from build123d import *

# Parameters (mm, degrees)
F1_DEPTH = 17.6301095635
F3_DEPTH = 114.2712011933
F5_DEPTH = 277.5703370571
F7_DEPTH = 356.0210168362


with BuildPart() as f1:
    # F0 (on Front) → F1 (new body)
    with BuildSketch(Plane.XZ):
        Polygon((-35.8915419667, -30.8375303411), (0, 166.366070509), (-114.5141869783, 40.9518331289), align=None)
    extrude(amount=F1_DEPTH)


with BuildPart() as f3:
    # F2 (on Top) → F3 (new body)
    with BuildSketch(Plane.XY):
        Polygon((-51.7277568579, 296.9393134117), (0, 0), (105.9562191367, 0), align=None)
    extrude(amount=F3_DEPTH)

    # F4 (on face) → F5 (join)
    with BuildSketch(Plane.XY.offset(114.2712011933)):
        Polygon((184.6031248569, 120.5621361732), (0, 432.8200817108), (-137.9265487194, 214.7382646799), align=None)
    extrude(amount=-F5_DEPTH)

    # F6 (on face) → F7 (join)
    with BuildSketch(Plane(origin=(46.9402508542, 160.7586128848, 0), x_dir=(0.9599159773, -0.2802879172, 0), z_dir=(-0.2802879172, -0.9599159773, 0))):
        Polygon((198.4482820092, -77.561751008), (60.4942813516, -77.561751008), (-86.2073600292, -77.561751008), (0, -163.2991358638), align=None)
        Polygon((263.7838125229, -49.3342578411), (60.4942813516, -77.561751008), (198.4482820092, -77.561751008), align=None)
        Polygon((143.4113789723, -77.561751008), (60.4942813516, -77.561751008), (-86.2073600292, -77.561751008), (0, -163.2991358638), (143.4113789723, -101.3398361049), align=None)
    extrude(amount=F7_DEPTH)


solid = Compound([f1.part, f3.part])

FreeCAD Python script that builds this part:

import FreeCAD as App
import Part
import Sketcher
from FreeCAD import Vector

doc = App.newDocument("Part")
body = doc.addObject("PartDesign::Body", "Body")

# Sketch on XZ plane
sketch1 = doc.addObject("Sketcher::SketchObject", "Sketch")
body.addObject(sketch1)
sketch1.AttachmentSupport = (doc.XZ_Plane, [""])
sketch1.MapMode = "FlatFace"
sketch1.addGeometry([
    Part.LineSegment(Vector(-35.891542, -30.83753, 0), Vector(0, 166.366071, 0)),
    Part.LineSegment(Vector(0, 166.366071, 0), Vector(-114.514187, 40.951833, 0)),
    Part.LineSegment(Vector(-114.514187, 40.951833, 0), Vector(-35.891542, -30.83753, 0)),
], False)
sketch1.addConstraint([
    Sketcher.Constraint("Coincident", 0, 2, 1, 1),
    Sketcher.Constraint("Coincident", 1, 2, 2, 1),
    Sketcher.Constraint("Coincident", 2, 2, 0, 1),
    Sketcher.Constraint("PointOnObject", 0, 2, -2),
    Sketcher.Constraint("Perpendicular", 1, 2),
    Sketcher.Constraint("DistanceY", 2, 2, 0, 2, 197.203601),
    Sketcher.Constraint("Distance", 2, 106.467051),
    Sketcher.Constraint("DistanceY", -1, 1, 0, 2, 166.366071),
    Sketcher.Constraint("DistanceX", 2, 2, -1, 1, 35.891542),
])
pad1 = doc.addObject("PartDesign::Pad", "Pad")
body.addObject(pad1)
pad1.Profile = sketch1
pad1.Length = 17.63011
body2 = doc.addObject("PartDesign::Body", "Body001")

# Sketch on XY plane
sketch2 = doc.addObject("Sketcher::SketchObject", "Sketch001")
body2.addObject(sketch2)
sketch2.AttachmentSupport = (doc.getObject("XY_Plane001"), [""])
sketch2.MapMode = "FlatFace"
sketch2.addGeometry([
    Part.LineSegment(Vector(-51.727757, 296.939313, 0), Vector(0, 0, 0)),
    Part.LineSegment(Vector(0, 0, 0), Vector(105.956219, 0, 0)),
    Part.LineSegment(Vector(105.956219, 0, 0), Vector(-51.727757, 296.939313, 0)),
], False)
sketch2.addConstraint([
    Sketcher.Constraint("Coincident", 0, 2, 1, 1),
    Sketcher.Constraint("Coincident", 1, 2, 2, 1),
    Sketcher.Constraint("Coincident", 2, 2, 0, 1),
    Sketcher.Constraint("Horizontal", 1),
    Sketcher.Constraint("Coincident", 0, 2, -1, 1),
    Sketcher.Constraint("DistanceX", 1, 1, 1, 2, 105.956219),
    Sketcher.Constraint("Distance", 0, 301.411209),
    Sketcher.Constraint("Distance", 2, 336.210042),
])
pad2 = doc.addObject("PartDesign::Pad", "Pad001")
body2.addObject(pad2)
pad2.Profile = sketch2
pad2.Length = 114.271201

# Sketch on XY plane
sketch3 = doc.addObject("Sketcher::SketchObject", "Sketch002")
body2.addObject(sketch3)
sketch3.AttachmentSupport = (doc.getObject("XY_Plane001"), [""])
sketch3.MapMode = "FlatFace"
sketch3.AttachmentOffset = App.Placement(Vector(0, 0, 114.271201), App.Rotation())
sketch3.addGeometry([
    Part.LineSegment(Vector(184.603125, 120.562136, 0), Vector(0, 432.820082, 0)),
    Part.LineSegment(Vector(0, 432.820082, 0), Vector(-137.926549, 214.738265, 0)),
    Part.LineSegment(Vector(-137.926549, 214.738265, 0), Vector(184.603125, 120.562136, 0)),
], False)
sketch3.addConstraint([
    Sketcher.Constraint("Coincident", 0, 2, 1, 1),
    Sketcher.Constraint("Coincident", 1, 2, 2, 1),
    Sketcher.Constraint("Coincident", 2, 2, 0, 1),
    Sketcher.Constraint("PointOnObject", 0, 2, -2),
    Sketcher.Constraint("DistanceY", -1, 1, 0, 2, 432.820082),
    Sketcher.Constraint("DistanceX", 1, 2, -1, 1, 137.926549),
    Sketcher.Constraint("DistanceY", 2, 2, 1, 2, 94.176129),
    Sketcher.Constraint("Distance", 0, 362.744177),
    Sketcher.Constraint("Distance", 1, 258.037617),
])
pad3 = doc.addObject("PartDesign::Pad", "Pad002")
body2.addObject(pad3)
pad3.Profile = sketch3
pad3.Length = 277.570337
pad3.Reversed = True

# Sketch on an angled plane
sketch4 = doc.addObject("Sketcher::SketchObject", "Sketch003")
body2.addObject(sketch4)
sketch4.Placement = App.Placement(Vector(46.940251, 160.758613, 0), App.Rotation(Vector(0.959915977, -0.280287917, 0), Vector(0, 0, 0.999999999), Vector(-0.280287917, -0.959915977, 0), "ZXY"))
sketch4.addGeometry([
    Part.LineSegment(Vector(0, -163.299136, 0), Vector(263.783812, -49.334258, 0)),
    Part.LineSegment(Vector(263.783812, -49.334258, 0), Vector(60.494281, -77.561751, 0)),
    Part.LineSegment(Vector(60.494281, -77.561751, 0), Vector(-86.20736, -77.561751, 0)),
    Part.LineSegment(Vector(-86.20736, -77.561751, 0), Vector(0, -163.299136, 0)),
], False)
sketch4.addConstraint([
    Sketcher.Constraint("Coincident", 0, 2, 1, 1),
    Sketcher.Constraint("Coincident", 1, 2, 2, 1),
    Sketcher.Constraint("Coincident", 2, 2, 3, 1),
    Sketcher.Constraint("Coincident", 3, 2, 0, 1),
    Sketcher.Constraint("Horizontal", 2),
    Sketcher.Constraint("PointOnObject", 3, 2, -2),
    Sketcher.Constraint("DistanceX", 2, 2, 2, 1, 146.701641),
    Sketcher.Constraint("Distance", 1, 205.23992),
    Sketcher.Constraint("Distance", 3, 121.583749),
    Sketcher.Constraint("DistanceX", -1, 1, 1, 2, 60.494281),
    Sketcher.Constraint("DistanceY", 1, 2, -1, 1, 77.561751),
    Sketcher.Constraint("DistanceX", 1, 2, 0, 2, 203.289531),
])
pad4 = doc.addObject("PartDesign::Pad", "Pad003")
body2.addObject(pad4)
pad4.Profile = sketch4
pad4.Length = 356.021017

doc.recompute()
